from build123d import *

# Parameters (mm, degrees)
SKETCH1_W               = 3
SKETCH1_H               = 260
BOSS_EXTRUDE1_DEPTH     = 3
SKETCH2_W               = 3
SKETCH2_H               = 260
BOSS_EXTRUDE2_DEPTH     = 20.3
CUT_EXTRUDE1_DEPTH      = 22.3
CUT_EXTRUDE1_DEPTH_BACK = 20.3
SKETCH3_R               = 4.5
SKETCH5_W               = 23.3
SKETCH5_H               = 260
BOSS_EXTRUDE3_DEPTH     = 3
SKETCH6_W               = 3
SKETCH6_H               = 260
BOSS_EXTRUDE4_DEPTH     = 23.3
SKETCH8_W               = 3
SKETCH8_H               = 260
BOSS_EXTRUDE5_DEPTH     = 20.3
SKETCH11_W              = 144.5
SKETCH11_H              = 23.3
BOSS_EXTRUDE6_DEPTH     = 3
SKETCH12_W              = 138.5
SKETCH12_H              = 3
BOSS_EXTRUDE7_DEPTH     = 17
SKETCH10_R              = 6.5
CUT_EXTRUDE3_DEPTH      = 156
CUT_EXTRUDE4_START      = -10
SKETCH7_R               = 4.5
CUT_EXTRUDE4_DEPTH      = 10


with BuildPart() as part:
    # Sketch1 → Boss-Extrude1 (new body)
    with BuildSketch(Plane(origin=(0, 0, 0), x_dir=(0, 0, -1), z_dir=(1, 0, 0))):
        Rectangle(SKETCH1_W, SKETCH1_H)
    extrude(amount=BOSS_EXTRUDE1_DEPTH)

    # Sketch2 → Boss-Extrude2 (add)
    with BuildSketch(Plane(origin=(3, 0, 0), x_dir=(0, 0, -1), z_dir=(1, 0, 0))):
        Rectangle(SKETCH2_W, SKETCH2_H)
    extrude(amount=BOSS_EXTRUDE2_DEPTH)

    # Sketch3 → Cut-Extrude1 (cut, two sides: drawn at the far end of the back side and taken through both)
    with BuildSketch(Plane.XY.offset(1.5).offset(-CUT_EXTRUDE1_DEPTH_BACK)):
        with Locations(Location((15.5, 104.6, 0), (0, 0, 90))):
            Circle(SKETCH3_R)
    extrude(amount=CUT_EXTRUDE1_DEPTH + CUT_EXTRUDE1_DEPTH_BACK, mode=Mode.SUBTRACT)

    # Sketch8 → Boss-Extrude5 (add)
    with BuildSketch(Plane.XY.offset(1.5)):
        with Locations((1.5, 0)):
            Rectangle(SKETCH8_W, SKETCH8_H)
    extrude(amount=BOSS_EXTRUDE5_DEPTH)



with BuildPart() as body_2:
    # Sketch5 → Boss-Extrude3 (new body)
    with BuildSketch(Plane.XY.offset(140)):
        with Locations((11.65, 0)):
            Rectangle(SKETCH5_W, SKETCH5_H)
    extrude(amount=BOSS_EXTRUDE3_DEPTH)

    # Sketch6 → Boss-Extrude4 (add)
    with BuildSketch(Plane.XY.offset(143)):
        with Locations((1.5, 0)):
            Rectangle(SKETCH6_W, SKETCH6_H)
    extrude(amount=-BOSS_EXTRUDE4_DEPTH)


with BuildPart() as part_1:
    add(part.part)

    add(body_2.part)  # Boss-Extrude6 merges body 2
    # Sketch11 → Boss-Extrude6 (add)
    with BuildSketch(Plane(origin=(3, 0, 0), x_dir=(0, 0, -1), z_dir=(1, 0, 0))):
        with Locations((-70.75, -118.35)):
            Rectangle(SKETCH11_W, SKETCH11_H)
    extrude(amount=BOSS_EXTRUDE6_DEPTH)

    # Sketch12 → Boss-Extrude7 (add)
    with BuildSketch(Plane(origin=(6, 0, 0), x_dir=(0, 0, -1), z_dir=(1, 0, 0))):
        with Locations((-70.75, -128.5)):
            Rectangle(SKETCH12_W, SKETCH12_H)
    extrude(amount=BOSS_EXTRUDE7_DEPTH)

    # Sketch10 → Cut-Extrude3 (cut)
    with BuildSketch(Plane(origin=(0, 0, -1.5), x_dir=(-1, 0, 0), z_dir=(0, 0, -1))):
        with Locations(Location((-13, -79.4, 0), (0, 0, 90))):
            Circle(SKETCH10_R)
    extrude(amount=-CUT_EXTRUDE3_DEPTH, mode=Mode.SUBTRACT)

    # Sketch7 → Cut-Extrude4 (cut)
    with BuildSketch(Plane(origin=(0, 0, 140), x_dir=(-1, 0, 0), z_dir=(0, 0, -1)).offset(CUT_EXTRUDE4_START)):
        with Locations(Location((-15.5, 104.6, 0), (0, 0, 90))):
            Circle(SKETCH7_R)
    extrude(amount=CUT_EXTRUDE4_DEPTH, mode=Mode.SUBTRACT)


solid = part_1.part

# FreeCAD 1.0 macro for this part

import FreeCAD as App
import Part
import Sketcher


def add_polygon(sketch, points):
    """Adds a closed chain of lines whose ends are joined by coincident constraints."""
    first, n = sketch.GeometryCount, len(points)
    for a, b in zip(points, points[1:] + points[:1]):
        sketch.addGeometry(Part.LineSegment(App.Vector(*a, 0), App.Vector(*b, 0)), False)
    for i in range(n):
        sketch.addConstraint(Sketcher.Constraint("Coincident", first + i, 2, first + (i + 1) % n, 1))

doc = App.newDocument("Part")
body = doc.addObject("PartDesign::Body", "Body")

sketch1 = doc.addObject("Sketcher::SketchObject", "Sketch")
body.addObject(sketch1)
sketch1.AttachmentSupport = (doc.YZ_Plane, [""])
sketch1.MapMode = "FlatFace"
add_polygon(sketch1, [(130, 1.5), (-130, 1.5), (-130, -1.5), (130, -1.5)])
sketch1.addConstraint(Sketcher.Constraint("Horizontal", 0))
sketch1.addConstraint(Sketcher.Constraint("Vertical", 1))
sketch1.addConstraint(Sketcher.Constraint("Horizontal", 2))
sketch1.addConstraint(Sketcher.Constraint("Vertical", 3))
sketch1.addConstraint(Sketcher.Constraint("Symmetric", 0, 2, 2, 2, -1, 1))
sketch1.addConstraint(Sketcher.Constraint("DistanceX", 0, 2, 0, 1, 260.0))
sketch1.addConstraint(Sketcher.Constraint("DistanceY", 1, 2, 1, 1, 3.0))
pad1 = doc.addObject("PartDesign::Pad", "Pad")
body.addObject(pad1)
pad1.Profile = sketch1
pad1.Length = 3

sketch2 = doc.addObject("Sketcher::SketchObject", "Sketch001")
body.addObject(sketch2)
sketch2.AttachmentSupport = (doc.YZ_Plane, [""])
sketch2.MapMode = "FlatFace"
sketch2.AttachmentOffset = App.Placement(App.Vector(0, 0, 3), App.Rotation())
add_polygon(sketch2, [(130, 1.5), (-130, 1.5), (-130, -1.5), (130, -1.5)])
sketch2.addConstraint(Sketcher.Constraint("Horizontal", 0))
sketch2.addConstraint(Sketcher.Constraint("Vertical", 1))
sketch2.addConstraint(Sketcher.Constraint("Horizontal", 2))
sketch2.addConstraint(Sketcher.Constraint("Vertical", 3))
sketch2.addConstraint(Sketcher.Constraint("Symmetric", 0, 2, 2, 2, -1, 1))
sketch2.addConstraint(Sketcher.Constraint("DistanceX", 0, 2, 0, 1, 260.0))
sketch2.addConstraint(Sketcher.Constraint("DistanceY", 1, 2, 1, 1, 3.0))
pad2 = doc.addObject("PartDesign::Pad", "Pad001")
body.addObject(pad2)
pad2.Profile = sketch2
pad2.Length = 20.3

sketch3 = doc.addObject("Sketcher::SketchObject", "Sketch002")
body.addObject(sketch3)
sketch3.AttachmentSupport = (doc.XY_Plane, [""])
sketch3.MapMode = "FlatFace"
sketch3.AttachmentOffset = App.Placement(App.Vector(0, 0, 1.5), App.Rotation())
sketch3.addGeometry(Part.Circle(App.Vector(15.5, 104.6, 0), App.Vector(0, 0, 1), 4.5), False)
sketch3.addConstraint(Sketcher.Constraint("Diameter", 0, 9.0))
sketch3.addConstraint(Sketcher.Constraint("DistanceX", -1, 1, 0, 3, 15.5))
sketch3.addConstraint(Sketcher.Constraint("DistanceY", -1, 1, 0, 3, 104.6))
pocket1 = doc.addObject("PartDesign::Pocket", "Pocket")
body.addObject(pocket1)
pocket1.Profile = sketch3
pocket1.Type = "ThroughAll"
pocket1.Midplane = True

sketch4 = doc.addObject("Sketcher::SketchObject", "Sketch003")
body.addObject(sketch4)
sketch4.AttachmentSupport = (doc.XY_Plane, [""])
sketch4.MapMode = "FlatFace"
sketch4.AttachmentOffset = App.Placement(App.Vector(0, 0, 1.5), App.Rotation())
add_polygon(sketch4, [(0, 130), (0, -130), (3, -130), (3, 130)])
sketch4.addConstraint(Sketcher.Constraint("Vertical", 0))
sketch4.addConstraint(Sketcher.Constraint("Horizontal", 1))
sketch4.addConstraint(Sketcher.Constraint("Vertical", 2))
sketch4.addConstraint(Sketcher.Constraint("Horizontal", 3))
sketch4.addConstraint(Sketcher.Constraint("Symmetric", 0, 2, 3, 2, -1, 1))
sketch4.addConstraint(Sketcher.Constraint("DistanceX", 1, 1, 1, 2, 3.0))
sketch4.addConstraint(Sketcher.Constraint("DistanceY", 0, 2, 0, 1, 260.0))
pad3 = doc.addObject("PartDesign::Pad", "Pad002")
body.addObject(pad3)
pad3.Profile = sketch4
pad3.Length = 20.3
body2 = doc.addObject("PartDesign::Body", "Body001")

sketch5 = doc.addObject("Sketcher::SketchObject", "Sketch004")
body2.addObject(sketch5)
sketch5.AttachmentSupport = (doc.getObject("XY_Plane001"), [""])
sketch5.MapMode = "FlatFace"
sketch5.AttachmentOffset = App.Placement(App.Vector(0, 0, 140), App.Rotation())
add_polygon(sketch5, [(0, 130), (0, -130), (23, -130), (23, 130)])
sketch5.addConstraint(Sketcher.Constraint("Vertical", 0))
sketch5.addConstraint(Sketcher.Constraint("Horizontal", 1))
sketch5.addConstraint(Sketcher.Constraint("Vertical", 2))
sketch5.addConstraint(Sketcher.Constraint("Horizontal", 3))
sketch5.addConstraint(Sketcher.Constraint("Symmetric", 0, 2, 3, 2, -1, 1))
sketch5.addConstraint(Sketcher.Constraint("DistanceY", 0, 2, 0, 1, 260.0))
sketch5.addConstraint(Sketcher.Constraint("DistanceX", 1, 1, 1, 2, 23.3))
pad4 = doc.addObject("PartDesign::Pad", "Pad003")
body2.addObject(pad4)
pad4.Profile = sketch5
pad4.Length = 3

sketch6 = doc.addObject("Sketcher::SketchObject", "Sketch005")
body2.addObject(sketch6)
sketch6.AttachmentSupport = (doc.getObject("XY_Plane001"), [""])
sketch6.MapMode = "FlatFace"
sketch6.AttachmentOffset = App.Placement(App.Vector(0, 0, 143), App.Rotation())
add_polygon(sketch6, [(0, 130), (0, -130), (3, -130), (3, 130)])
sketch6.addConstraint(Sketcher.Constraint("Vertical", 0))
sketch6.addConstraint(Sketcher.Constraint("Horizontal", 1))
sketch6.addConstraint(Sketcher.Constraint("Vertical", 2))
sketch6.addConstraint(Sketcher.Constraint("Horizontal", 3))
sketch6.addConstraint(Sketcher.Constraint("Symmetric", 0, 2, 3, 2, -1, 1))
sketch6.addConstraint(Sketcher.Constraint("DistanceX", 1, 1, 1, 2, 3.0))
sketch6.addConstraint(Sketcher.Constraint("DistanceY", 0, 2, 0, 1, 260.0))
pad5 = doc.addObject("PartDesign::Pad", "Pad004")
body2.addObject(pad5)
pad5.Profile = sketch6
pad5.Length = 23.3
pad5.Reversed = True
body.AllowCompound = True
doc.recompute()

boolean = doc.addObject("PartDesign::Boolean", "Boolean")
body.addObject(boolean)
boolean.Type = "Fuse"
boolean.addObjects([body2])

sketch7 = doc.addObject("Sketcher::SketchObject", "Sketch006")
body.addObject(sketch7)
sketch7.AttachmentSupport = (doc.YZ_Plane, [""])
sketch7.MapMode = "FlatFace"
sketch7.AttachmentOffset = App.Placement(App.Vector(0, 0, 3), App.Rotation())
add_polygon(sketch7, [(-107, 143), (-130, 143), (-130, -2), (-107, -2)])
sketch7.addConstraint(Sketcher.Constraint("Horizontal", 0))
sketch7.addConstraint(Sketcher.Constraint("Vertical", 1))
sketch7.addConstraint(Sketcher.Constraint("Horizontal", 2))
sketch7.addConstraint(Sketcher.Constraint("Vertical", 3))
sketch7.addConstraint(Sketcher.Constraint("DistanceX", 0, 2, 0, 1, 23.3))
sketch7.addConstraint(Sketcher.Constraint("DistanceY", 1, 2, 1, 1, 144.5))
sketch7.addConstraint(Sketcher.Constraint("DistanceX", 0, 2, -1, 1, 130.0))
sketch7.addConstraint(Sketcher.Constraint("DistanceY", -1, 1, 0, 2, 143.0))
pad6 = doc.addObject("PartDesign::Pad", "Pad005")
body.addObject(pad6)
pad6.Profile = sketch7
pad6.Length = 3

sketch8 = doc.addObject("Sketcher::SketchObject", "Sketch007")
body.addObject(sketch8)
sketch8.AttachmentSupport = (doc.YZ_Plane, [""])
sketch8.MapMode = "FlatFace"
sketch8.AttachmentOffset = App.Placement(App.Vector(0, 0, 6), App.Rotation())
add_polygon(sketch8, [(-127, 140), (-130, 140), (-130, 1.5), (-127, 1.5)])
sketch8.addConstraint(Sketcher.Constraint("Horizontal", 0))
sketch8.addConstraint(Sketcher.Constraint("Vertical", 1))
sketch8.addConstraint(Sketcher.Constraint("Horizontal", 2))
sketch8.addConstraint(Sketcher.Constraint("Vertical", 3))
sketch8.addConstraint(Sketcher.Constraint("DistanceX", 0, 2, 0, 1, 3.0))
sketch8.addConstraint(Sketcher.Constraint("DistanceY", 1, 2, 1, 1, 138.5))
sketch8.addConstraint(Sketcher.Constraint("DistanceX", 0, 2, -1, 1, 130.0))
sketch8.addConstraint(Sketcher.Constraint("DistanceY", -1, 1, 0, 2, 140.0))
pad7 = doc.addObject("PartDesign::Pad", "Pad006")
body.addObject(pad7)
pad7.Profile = sketch8
pad7.Length = 17

sketch9 = doc.addObject("Sketcher::SketchObject", "Sketch008")
body.addObject(sketch9)
sketch9.AttachmentSupport = (doc.XY_Plane, [""])
sketch9.MapMode = "FlatFace"
sketch9.AttachmentOffset = App.Placement(App.Vector(0, 0, -1.5), App.Rotation())
sketch9.addGeometry(Part.Circle(App.Vector(13, -79, 0), App.Vector(0, 0, 1), 6), False)
sketch9.addConstraint(Sketcher.Constraint("Diameter", 0, 13.0))
sketch9.addConstraint(Sketcher.Constraint("DistanceX", -1, 1, 0, 3, 13.0))
sketch9.addConstraint(Sketcher.Constraint("DistanceY", 0, 3, -1, 1, 79.4))
pocket2 = doc.addObject("PartDesign::Pocket", "Pocket001")
body.addObject(pocket2)
pocket2.Profile = sketch9
pocket2.Length = 156
pocket2.Reversed = True

sketch10 = doc.addObject("Sketcher::SketchObject", "Sketch009")
body.addObject(sketch10)
sketch10.AttachmentSupport = (doc.XY_Plane, [""])
sketch10.MapMode = "FlatFace"
sketch10.AttachmentOffset = App.Placement(App.Vector(0, 0, 150), App.Rotation())
sketch10.addGeometry(Part.Circle(App.Vector(15.5, 104.6, 0), App.Vector(0, 0, 1), 4.5), False)
sketch10.addConstraint(Sketcher.Constraint("Diameter", 0, 9.0))
sketch10.addConstraint(Sketcher.Constraint("DistanceX", -1, 1, 0, 3, 15.5))
sketch10.addConstraint(Sketcher.Constraint("DistanceY", -1, 1, 0, 3, 104.6))
pocket3 = doc.addObject("PartDesign::Pocket", "Pocket002")
body.addObject(pocket3)
pocket3.Profile = sketch10
pocket3.Length = 10

doc.recompute()
